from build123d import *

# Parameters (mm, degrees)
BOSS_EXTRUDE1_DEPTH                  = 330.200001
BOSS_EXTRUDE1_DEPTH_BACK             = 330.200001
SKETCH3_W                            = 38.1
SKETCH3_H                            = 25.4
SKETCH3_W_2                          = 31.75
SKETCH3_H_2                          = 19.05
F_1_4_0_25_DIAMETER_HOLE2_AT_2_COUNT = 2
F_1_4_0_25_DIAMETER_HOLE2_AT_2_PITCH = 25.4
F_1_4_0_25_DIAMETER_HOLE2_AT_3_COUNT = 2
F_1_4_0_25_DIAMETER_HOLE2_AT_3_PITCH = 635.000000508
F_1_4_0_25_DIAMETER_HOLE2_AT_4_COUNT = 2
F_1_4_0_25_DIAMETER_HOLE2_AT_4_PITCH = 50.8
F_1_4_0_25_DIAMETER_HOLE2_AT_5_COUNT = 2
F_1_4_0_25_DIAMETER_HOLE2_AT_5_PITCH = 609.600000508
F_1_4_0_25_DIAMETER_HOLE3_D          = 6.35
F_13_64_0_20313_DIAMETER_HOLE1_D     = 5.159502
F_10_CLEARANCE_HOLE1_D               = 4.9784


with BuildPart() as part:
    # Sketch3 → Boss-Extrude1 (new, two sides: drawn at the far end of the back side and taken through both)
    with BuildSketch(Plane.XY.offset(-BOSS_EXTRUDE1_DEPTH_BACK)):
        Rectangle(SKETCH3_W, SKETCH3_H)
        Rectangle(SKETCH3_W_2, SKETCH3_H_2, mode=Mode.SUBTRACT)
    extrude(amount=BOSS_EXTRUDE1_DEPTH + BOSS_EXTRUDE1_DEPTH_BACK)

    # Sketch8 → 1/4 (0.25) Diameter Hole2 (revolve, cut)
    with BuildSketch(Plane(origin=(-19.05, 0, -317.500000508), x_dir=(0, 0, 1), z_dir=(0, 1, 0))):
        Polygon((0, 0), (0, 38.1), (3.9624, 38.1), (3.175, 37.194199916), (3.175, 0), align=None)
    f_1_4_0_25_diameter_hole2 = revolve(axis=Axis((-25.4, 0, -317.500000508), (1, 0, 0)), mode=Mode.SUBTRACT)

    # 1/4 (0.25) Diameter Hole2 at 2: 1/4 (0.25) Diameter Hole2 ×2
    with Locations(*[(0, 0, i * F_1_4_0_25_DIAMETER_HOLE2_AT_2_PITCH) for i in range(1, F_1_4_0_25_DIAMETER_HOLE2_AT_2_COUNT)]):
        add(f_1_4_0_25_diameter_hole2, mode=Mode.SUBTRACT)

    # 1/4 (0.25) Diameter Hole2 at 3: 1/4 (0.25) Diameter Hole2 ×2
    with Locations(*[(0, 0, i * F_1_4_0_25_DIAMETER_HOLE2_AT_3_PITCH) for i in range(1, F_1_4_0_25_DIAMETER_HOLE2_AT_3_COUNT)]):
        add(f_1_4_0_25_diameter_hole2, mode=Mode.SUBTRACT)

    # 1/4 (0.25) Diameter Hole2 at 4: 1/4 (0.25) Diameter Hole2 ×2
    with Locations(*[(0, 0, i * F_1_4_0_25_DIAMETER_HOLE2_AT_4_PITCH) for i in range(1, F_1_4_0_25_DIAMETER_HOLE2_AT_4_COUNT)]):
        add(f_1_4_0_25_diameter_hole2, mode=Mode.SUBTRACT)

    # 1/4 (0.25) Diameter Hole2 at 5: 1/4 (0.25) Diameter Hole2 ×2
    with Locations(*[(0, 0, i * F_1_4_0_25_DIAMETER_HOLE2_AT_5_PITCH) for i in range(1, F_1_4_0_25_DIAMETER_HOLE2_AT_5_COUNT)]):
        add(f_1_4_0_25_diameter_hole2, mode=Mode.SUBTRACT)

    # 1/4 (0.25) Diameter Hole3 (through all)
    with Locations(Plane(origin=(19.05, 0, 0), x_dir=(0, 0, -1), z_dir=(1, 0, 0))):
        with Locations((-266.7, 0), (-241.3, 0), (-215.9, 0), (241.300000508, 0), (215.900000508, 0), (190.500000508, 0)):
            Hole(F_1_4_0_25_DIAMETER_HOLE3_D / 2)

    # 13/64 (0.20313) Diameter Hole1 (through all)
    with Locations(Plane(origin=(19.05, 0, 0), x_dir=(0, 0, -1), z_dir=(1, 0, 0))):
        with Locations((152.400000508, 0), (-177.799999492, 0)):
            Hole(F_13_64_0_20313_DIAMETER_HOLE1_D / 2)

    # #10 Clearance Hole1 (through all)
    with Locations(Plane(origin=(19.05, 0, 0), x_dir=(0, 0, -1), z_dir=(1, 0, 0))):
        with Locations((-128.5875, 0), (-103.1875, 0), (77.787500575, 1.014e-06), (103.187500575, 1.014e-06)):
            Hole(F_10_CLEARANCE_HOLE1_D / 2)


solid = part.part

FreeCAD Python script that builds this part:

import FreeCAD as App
import Part
import Sketcher

V = App.Vector
Q = App.Units.Quantity


def add_polygon(sketch, points):
    """Adds a closed chain of lines whose ends are joined by coincident constraints."""
    first, n = sketch.GeometryCount, len(points)
    for a, b in zip(points, points[1:] + points[:1]):
        sketch.addGeometry(Part.LineSegment(App.Vector(*a, 0), App.Vector(*b, 0)), False)
    for i in range(n):
        sketch.addConstraint(Sketcher.Constraint("Coincident", first + i, 2, first + (i + 1) % n, 1))

doc = App.newDocument("Part")
body = doc.addObject("PartDesign::Body", "Body")

sketch1 = doc.addObject("Sketcher::SketchObject", "Sketch")
body.addObject(sketch1)
sketch1.AttachmentSupport = (doc.XY_Plane, [""])
sketch1.MapMode = "FlatFace"
add_polygon(sketch1, [(-19.05, 12.7), (-19.05, -12.7), (19.05, -12.7), (19.05, 12.7)])
add_polygon(sketch1, [(15.875, -9.525), (-15.875, -9.525), (-15.875, 9.525), (15.875, 9.525)])
sketch1.addConstraint(Sketcher.Constraint("Vertical", 0))
sketch1.addConstraint(Sketcher.Constraint("Horizontal", 1))
sketch1.addConstraint(Sketcher.Constraint("Vertical", 2))
sketch1.addConstraint(Sketcher.Constraint("Horizontal", 3))
sketch1.addConstraint(Sketcher.Constraint("Horizontal", 4))
sketch1.addConstraint(Sketcher.Constraint("Vertical", 5))
sketch1.addConstraint(Sketcher.Constraint("Horizontal", 6))
sketch1.addConstraint(Sketcher.Constraint("Vertical", 7))
sketch1.addConstraint(Sketcher.Constraint("Symmetric", 0, 2, 2, 2, -1, 1))
sketch1.addConstraint(Sketcher.Constraint("Symmetric", 4, 2, 6, 2, -1, 1))
sketch1.addConstraint(Sketcher.Constraint("DistanceY", 0, 2, 0, 1, Q("1 in")))
sketch1.addConstraint(Sketcher.Constraint("DistanceX", 1, 1, 1, 2, Q("1.5 in")))
sketch1.addConstraint(Sketcher.Constraint("DistanceX", 4, 2, 4, 1, Q("1.25 in")))
sketch1.addConstraint(Sketcher.Constraint("DistanceY", 5, 1, 5, 2, Q("0.75 in")))
pad1 = doc.addObject("PartDesign::Pad", "Pad")
body.addObject(pad1)
pad1.Profile = sketch1
pad1.Type = "TwoLengths"
pad1.Length = Q("13 in")
pad1.Length2 = Q("13 in")

sketch2 = doc.addObject("Sketcher::SketchObject", "Sketch001")
body.addObject(sketch2)
sketch2.AttachmentSupport = (doc.XZ_Plane, [""])
sketch2.MapMode = "FlatFace"
add_polygon(sketch2, [(19.05, -317.500001), (-19.05, -317.500001), (-19.05, -314.325001), (18.1442, -314.325001), (19.05, -313.537601)])
sketch2.addGeometry(Part.LineSegment(V(-19.05, -317.500001, 0), V(19.05, -317.500001, 0)), True)
sketch2.addConstraint(Sketcher.Constraint("Horizontal", 0))
sketch2.addConstraint(Sketcher.Constraint("Vertical", 1))
sketch2.addConstraint(Sketcher.Constraint("Horizontal", 2))
sketch2.addConstraint(Sketcher.Constraint("Vertical", 4))
sketch2.addConstraint(Sketcher.Constraint("Horizontal", 5))
sketch2.addConstraint(Sketcher.Constraint("Coincident", 5, 1, 0, 2))
sketch2.addConstraint(Sketcher.Constraint("Vertical", 3, 2, 5, 2))
sketch2.addConstraint(Sketcher.Constraint("DistanceX", 0, 2, 0, 1, Q("1.5 in")))
sketch2.addConstraint(Sketcher.Constraint("Angle", 3, Q("41 deg")))
sketch2.addConstraint(Sketcher.Constraint("DistanceY", 0, 2, -1, 1, Q("12.5 in")))
sketch2.addConstraint(Sketcher.Constraint("DistanceY", 1, 1, 1, 2, Q("0.125 in")))
sketch2.addConstraint(Sketcher.Constraint("DistanceY", 4, 2, 4, 1, Q("0.156 in")))
sketch2.addConstraint(Sketcher.Constraint("DistanceX", 0, 2, -1, 1, Q("0.75 in")))
groove = doc.addObject("PartDesign::Groove", "Groove")
body.addObject(groove)
groove.Profile = sketch2
groove.ReferenceAxis = (sketch2, ["Axis0"])
groove.Angle = 360
doc.recompute()

linearpattern = doc.addObject("PartDesign::LinearPattern", "LinearPattern")
body.addObject(linearpattern)
linearpattern.Originals = [groove]
linearpattern.Direction = (doc.Z_Axis, [""])
linearpattern.Mode = "offset"
linearpattern.Offset = Q("1 in")
linearpattern.Occurrences = 2
body.Tip = linearpattern
doc.recompute()

linearpattern2 = doc.addObject("PartDesign::LinearPattern", "LinearPattern001")
body.addObject(linearpattern2)
linearpattern2.Originals = [groove]
linearpattern2.Direction = (doc.Z_Axis, [""])
linearpattern2.Mode = "offset"
linearpattern2.Offset = Q("25 in")
linearpattern2.Occurrences = 2
body.Tip = linearpattern2
doc.recompute()

linearpattern3 = doc.addObject("PartDesign::LinearPattern", "LinearPattern002")
body.addObject(linearpattern3)
linearpattern3.Originals = [groove]
linearpattern3.Direction = (doc.Z_Axis, [""])
linearpattern3.Mode = "offset"
linearpattern3.Offset = Q("2 in")
linearpattern3.Occurrences = 2
body.Tip = linearpattern3
doc.recompute()

linearpattern4 = doc.addObject("PartDesign::LinearPattern", "LinearPattern003")
body.addObject(linearpattern4)
linearpattern4.Originals = [groove]
linearpattern4.Direction = (doc.Z_Axis, [""])
linearpattern4.Mode = "offset"
linearpattern4.Offset = Q("24 in")
linearpattern4.Occurrences = 2
body.Tip = linearpattern4

sketch3 = doc.addObject("Sketcher::SketchObject", "Sketch002")
body.addObject(sketch3)
sketch3.AttachmentSupport = (doc.YZ_Plane, [""])
sketch3.MapMode = "FlatFace"
sketch3.AttachmentOffset = App.Placement(V(0, 0, 0.75 * 25.4), App.Rotation())
sketch3.addGeometry(Part.Circle(V(0, 266.7, 0), V(0, 0, 1), 3.175), False)
sketch3.addGeometry(Part.Circle(V(0, 241.3, 0), V(0, 0, 1), 3.175), False)
sketch3.addGeometry(Part.Circle(V(0, 215.9, 0), V(0, 0, 1), 3.175), False)
sketch3.addGeometry(Part.Circle(V(0, -241.300001, 0), V(0, 0, 1), 3.175), False)
sketch3.addGeometry(Part.Circle(V(0, -215.900001, 0), V(0, 0, 1), 3.175), False)
sketch3.addGeometry(Part.Circle(V(0, -190.500001, 0), V(0, 0, 1), 3.175), False)
sketch3.addConstraint(Sketcher.Constraint("Equal", 0, 1))
sketch3.addConstraint(Sketcher.Constraint("Equal", 1, 2))
sketch3.addConstraint(Sketcher.Constraint("Equal", 2, 3))
sketch3.addConstraint(Sketcher.Constraint("Equal", 3, 4))
sketch3.addConstraint(Sketcher.Constraint("Equal", 4, 5))
sketch3.addConstraint(Sketcher.Constraint("Symmetric", 1, 3, 3, 3, -1, 1))
sketch3.addConstraint(Sketcher.Constraint("Symmetric", 2, 3, 4, 3, -1, 1))
sketch3.addConstraint(Sketcher.Constraint("PointOnObject", 0, 3, -2))
sketch3.addConstraint(Sketcher.Constraint("PointOnObject", 1, 3, -2))
sketch3.addConstraint(Sketcher.Constraint("PointOnObject", 2, 3, -2))
sketch3.addConstraint(Sketcher.Constraint("PointOnObject", 5, 3, -2))
sketch3.addConstraint(Sketcher.Constraint("Diameter", 0, Q("0.25 in")))
sketch3.addConstraint(Sketcher.Constraint("DistanceY", 1, 3, 0, 3, Q("1 in")))
sketch3.addConstraint(Sketcher.Constraint("DistanceY", 2, 3, 1, 3, Q("1 in")))
sketch3.addConstraint(Sketcher.Constraint("DistanceY", 3, 3, 2, 3, Q("18 in")))
sketch3.addConstraint(Sketcher.Constraint("DistanceY", 4, 3, 5, 3, Q("1 in")))
doc.recompute()
hole = doc.addObject("PartDesign::Hole", "Hole")
body.addObject(hole)
hole.Profile = sketch3
hole.ThreadType = "None"
hole.Diameter = Q("0.25 in")
hole.DepthType = "ThroughAll"

sketch4 = doc.addObject("Sketcher::SketchObject", "Sketch003")
body.addObject(sketch4)
sketch4.AttachmentSupport = (doc.YZ_Plane, [""])
sketch4.MapMode = "FlatFace"
sketch4.AttachmentOffset = App.Placement(V(0, 0, 0.75 * 25.4), App.Rotation())
sketch4.addGeometry(Part.Circle(V(0, -152.400001, 0), V(0, 0, 1), 2.579751), False)
sketch4.addGeometry(Part.Circle(V(0, 177.799999, 0), V(0, 0, 1), 2.579751), False)
sketch4.addConstraint(Sketcher.Constraint("Equal", 0, 1))
sketch4.addConstraint(Sketcher.Constraint("PointOnObject", 0, 3, -2))
sketch4.addConstraint(Sketcher.Constraint("PointOnObject", 1, 3, -2))
sketch4.addConstraint(Sketcher.Constraint("DistanceY", 0, 3, -1, 1, Q("6 in")))
sketch4.addConstraint(Sketcher.Constraint("DistanceY", -1, 1, 1, 3, Q("7 in")))
sketch4.addConstraint(Sketcher.Constraint("Diameter", 0, Q("5.159502 mm")))
doc.recompute()
hole2 = doc.addObject("PartDesign::Hole", "Hole001")
body.addObject(hole2)
hole2.Profile = sketch4
hole2.ThreadType = "None"
hole2.Diameter = 5.159502
hole2.DepthType = "ThroughAll"

sketch5 = doc.addObject("Sketcher::SketchObject", "Sketch004")
body.addObject(sketch5)
sketch5.AttachmentSupport = (doc.YZ_Plane, [""])
sketch5.MapMode = "FlatFace"
sketch5.AttachmentOffset = App.Placement(V(0, 0, 0.75 * 25.4), App.Rotation())
sketch5.addGeometry(Part.Circle(V(0, 128.5875, 0), V(0, 0, 1), 2.4892), False)
sketch5.addGeometry(Part.Circle(V(0, 103.1875, 0), V(0, 0, 1), 2.4892), False)
sketch5.addGeometry(Part.Circle(V(0.000001, -77.787501, 0), V(0, 0, 1), 2.4892), False)
sketch5.addGeometry(Part.Circle(V(0.000001, -103.187501, 0), V(0, 0, 1), 2.4892), False)
sketch5.addConstraint(Sketcher.Constraint("Equal", 0, 1))
sketch5.addConstraint(Sketcher.Constraint("Equal", 1, 2))
sketch5.addConstraint(Sketcher.Constraint("Equal", 2, 3))
sketch5.addConstraint(Sketcher.Constraint("Symmetric", 1, 3, 3, 3, -1, 1))
sketch5.addConstraint(Sketcher.Constraint("PointOnObject", 0, 3, -2))
sketch5.addConstraint(Sketcher.Constraint("PointOnObject", 1, 3, -2))
sketch5.addConstraint(Sketcher.Constraint("PointOnObject", 2, 3, -2))
sketch5.addConstraint(Sketcher.Constraint("Diameter", 0, Q("0.196 in")))
sketch5.addConstraint(Sketcher.Constraint("DistanceY", 1, 3, 0, 3, Q("1 in")))
sketch5.addConstraint(Sketcher.Constraint("DistanceY", 3, 3, 2, 3, Q("1 in")))
sketch5.addConstraint(Sketcher.Constraint("DistanceY", -1, 1, 0, 3, Q("5.0625 in")))
doc.recompute()
hole3 = doc.addObject("PartDesign::Hole", "Hole002")
body.addObject(hole3)
hole3.Profile = sketch5
hole3.ThreadType = "None"
hole3.Diameter = Q("0.196 in")
hole3.DepthType = "ThroughAll"

doc.recompute()
